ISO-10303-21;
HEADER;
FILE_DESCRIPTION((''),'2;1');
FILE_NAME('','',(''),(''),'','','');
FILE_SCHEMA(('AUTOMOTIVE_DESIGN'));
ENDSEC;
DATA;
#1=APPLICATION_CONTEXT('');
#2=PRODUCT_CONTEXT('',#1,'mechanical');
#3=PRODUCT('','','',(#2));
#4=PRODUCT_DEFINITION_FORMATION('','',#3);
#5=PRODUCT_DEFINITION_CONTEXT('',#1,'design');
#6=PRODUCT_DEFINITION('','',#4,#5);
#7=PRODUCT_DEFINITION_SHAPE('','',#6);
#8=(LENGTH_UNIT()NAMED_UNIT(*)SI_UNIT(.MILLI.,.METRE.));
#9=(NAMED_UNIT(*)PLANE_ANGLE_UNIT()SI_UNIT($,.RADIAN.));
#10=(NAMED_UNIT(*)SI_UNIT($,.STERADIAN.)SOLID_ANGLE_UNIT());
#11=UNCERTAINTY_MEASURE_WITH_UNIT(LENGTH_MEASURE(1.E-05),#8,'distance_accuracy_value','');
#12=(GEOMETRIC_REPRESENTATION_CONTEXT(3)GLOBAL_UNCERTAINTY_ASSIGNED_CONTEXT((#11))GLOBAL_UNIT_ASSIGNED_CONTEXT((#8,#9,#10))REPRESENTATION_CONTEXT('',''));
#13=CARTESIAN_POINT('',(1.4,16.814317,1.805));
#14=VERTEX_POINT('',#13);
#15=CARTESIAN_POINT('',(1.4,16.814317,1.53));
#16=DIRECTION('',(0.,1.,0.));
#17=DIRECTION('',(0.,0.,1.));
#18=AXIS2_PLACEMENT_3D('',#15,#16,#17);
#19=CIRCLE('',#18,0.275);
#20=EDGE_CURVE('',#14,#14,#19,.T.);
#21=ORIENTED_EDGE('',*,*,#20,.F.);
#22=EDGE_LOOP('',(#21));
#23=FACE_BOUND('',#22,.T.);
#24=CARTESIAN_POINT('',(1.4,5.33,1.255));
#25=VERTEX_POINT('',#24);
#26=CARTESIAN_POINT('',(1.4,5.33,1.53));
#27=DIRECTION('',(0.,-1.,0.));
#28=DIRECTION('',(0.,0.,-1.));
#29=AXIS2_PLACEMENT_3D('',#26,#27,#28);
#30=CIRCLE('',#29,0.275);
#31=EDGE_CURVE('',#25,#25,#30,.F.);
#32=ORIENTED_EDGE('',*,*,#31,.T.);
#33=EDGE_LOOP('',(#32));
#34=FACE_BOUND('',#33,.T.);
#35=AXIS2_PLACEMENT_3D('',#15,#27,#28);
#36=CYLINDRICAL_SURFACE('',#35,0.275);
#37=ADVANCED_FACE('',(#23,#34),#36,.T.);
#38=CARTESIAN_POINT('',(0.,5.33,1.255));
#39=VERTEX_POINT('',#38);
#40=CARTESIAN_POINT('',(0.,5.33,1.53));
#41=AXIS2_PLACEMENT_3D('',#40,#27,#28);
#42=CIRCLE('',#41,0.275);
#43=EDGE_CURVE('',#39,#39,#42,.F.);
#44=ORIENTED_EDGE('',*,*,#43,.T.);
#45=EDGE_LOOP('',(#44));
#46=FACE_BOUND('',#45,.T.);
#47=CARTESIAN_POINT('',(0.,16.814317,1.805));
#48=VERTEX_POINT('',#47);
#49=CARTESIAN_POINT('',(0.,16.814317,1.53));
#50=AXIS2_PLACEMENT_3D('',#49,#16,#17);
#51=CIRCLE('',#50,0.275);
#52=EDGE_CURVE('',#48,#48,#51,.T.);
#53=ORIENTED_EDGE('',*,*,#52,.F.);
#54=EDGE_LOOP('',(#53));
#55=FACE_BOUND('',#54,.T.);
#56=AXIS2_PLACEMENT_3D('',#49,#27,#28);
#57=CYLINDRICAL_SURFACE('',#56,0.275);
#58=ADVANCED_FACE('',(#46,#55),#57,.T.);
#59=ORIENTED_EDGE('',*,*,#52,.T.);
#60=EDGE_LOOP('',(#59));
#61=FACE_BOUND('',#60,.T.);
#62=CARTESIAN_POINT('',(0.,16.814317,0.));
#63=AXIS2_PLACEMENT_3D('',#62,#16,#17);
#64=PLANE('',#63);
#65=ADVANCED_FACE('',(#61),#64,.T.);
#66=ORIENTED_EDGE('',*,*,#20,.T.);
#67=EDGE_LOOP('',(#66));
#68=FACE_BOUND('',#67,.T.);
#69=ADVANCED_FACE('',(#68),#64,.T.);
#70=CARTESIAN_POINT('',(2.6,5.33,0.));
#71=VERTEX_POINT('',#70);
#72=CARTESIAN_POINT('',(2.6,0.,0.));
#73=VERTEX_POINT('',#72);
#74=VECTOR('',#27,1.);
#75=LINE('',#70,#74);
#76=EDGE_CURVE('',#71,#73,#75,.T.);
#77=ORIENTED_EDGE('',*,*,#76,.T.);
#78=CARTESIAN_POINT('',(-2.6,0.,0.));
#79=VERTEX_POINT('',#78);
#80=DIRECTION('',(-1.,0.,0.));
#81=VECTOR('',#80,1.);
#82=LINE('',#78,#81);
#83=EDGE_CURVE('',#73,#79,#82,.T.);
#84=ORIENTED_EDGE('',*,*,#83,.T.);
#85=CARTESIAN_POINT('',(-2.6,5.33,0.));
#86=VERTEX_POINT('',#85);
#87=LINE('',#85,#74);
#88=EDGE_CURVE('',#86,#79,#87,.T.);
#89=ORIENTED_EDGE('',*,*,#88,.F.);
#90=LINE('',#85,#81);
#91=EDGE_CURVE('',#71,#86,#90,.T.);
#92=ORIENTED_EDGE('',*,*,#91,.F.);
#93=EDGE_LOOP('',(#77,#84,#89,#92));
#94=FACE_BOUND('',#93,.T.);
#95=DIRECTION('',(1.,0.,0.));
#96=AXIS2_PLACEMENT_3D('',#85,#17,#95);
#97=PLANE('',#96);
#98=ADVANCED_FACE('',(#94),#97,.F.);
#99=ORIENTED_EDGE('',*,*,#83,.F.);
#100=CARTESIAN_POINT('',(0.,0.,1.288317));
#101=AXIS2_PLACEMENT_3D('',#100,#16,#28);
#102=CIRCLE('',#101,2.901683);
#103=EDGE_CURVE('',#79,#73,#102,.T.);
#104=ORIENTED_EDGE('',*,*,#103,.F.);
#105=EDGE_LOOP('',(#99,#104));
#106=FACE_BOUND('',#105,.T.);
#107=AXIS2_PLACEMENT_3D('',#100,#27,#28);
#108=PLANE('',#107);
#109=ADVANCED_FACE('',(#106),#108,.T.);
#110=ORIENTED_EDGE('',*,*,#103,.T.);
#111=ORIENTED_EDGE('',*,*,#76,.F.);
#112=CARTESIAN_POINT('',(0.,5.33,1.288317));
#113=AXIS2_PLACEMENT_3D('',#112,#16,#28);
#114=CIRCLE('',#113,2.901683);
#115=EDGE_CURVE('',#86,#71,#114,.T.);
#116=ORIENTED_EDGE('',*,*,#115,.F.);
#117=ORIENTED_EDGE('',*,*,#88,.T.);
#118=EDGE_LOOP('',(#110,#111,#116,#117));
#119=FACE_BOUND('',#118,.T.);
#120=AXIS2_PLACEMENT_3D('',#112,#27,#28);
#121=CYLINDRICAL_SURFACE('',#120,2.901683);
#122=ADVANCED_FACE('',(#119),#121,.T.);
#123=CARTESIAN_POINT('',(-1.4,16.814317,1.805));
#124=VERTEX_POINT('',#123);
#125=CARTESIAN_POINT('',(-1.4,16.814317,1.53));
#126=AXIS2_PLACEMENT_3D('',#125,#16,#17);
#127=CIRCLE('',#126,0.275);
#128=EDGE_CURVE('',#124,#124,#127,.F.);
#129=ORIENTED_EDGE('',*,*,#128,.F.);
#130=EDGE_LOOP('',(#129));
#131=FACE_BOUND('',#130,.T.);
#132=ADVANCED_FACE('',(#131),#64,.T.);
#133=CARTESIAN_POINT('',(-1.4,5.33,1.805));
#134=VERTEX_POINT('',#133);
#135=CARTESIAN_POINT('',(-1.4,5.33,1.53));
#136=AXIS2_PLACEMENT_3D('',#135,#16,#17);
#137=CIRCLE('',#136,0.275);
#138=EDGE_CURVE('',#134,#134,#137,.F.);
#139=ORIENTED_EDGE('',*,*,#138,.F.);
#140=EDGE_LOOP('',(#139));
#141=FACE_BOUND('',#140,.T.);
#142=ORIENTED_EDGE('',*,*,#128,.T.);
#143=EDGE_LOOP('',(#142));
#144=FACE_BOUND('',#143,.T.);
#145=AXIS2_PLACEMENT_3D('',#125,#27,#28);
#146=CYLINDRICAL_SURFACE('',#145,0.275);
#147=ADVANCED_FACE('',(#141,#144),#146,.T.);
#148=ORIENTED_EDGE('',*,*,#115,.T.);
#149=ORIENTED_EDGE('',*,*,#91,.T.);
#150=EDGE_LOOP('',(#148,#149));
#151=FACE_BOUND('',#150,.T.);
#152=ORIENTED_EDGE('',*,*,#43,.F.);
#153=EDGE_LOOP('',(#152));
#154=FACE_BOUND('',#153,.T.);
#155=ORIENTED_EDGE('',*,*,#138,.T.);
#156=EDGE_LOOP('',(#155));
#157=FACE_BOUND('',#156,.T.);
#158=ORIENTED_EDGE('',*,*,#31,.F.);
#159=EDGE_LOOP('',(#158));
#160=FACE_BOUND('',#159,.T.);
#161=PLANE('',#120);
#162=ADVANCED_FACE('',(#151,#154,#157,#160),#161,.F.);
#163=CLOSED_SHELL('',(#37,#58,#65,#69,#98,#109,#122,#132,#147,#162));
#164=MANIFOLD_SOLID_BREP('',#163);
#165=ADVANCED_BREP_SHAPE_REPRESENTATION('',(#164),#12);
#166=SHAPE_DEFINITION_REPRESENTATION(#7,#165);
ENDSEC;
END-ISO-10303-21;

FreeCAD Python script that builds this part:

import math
import FreeCAD as App
import Part
import Sketcher

doc = App.newDocument("Part")
body = doc.addObject("PartDesign::Body", "Body")

# Sketch on XZ plane
sketch1 = body.newObject("Sketcher::SketchObject", "Sketch")
sketch1.AttachmentSupport = (doc.getObject("XZ_Plane"), [""])
sketch1.MapMode = "FlatFace"
sketch1.addGeometry([
    Part.LineSegment(App.Vector(2.6, 0, 0), App.Vector(-2.6, 0, 0)),
    Part.ArcOfCircle(Part.Circle(App.Vector(0, 1.288317, 0), App.Vector(0, 0, 1), 2.901683), math.radians(-26.358724), math.radians(206.358724)),
], False)
sketch1.addConstraint([
    Sketcher.Constraint("Coincident", 0, 1, 1, 1),
    Sketcher.Constraint("Coincident", 1, 2, 0, 2),
    Sketcher.Constraint("Horizontal", 0),
    Sketcher.Constraint("Symmetric", 0, 1, 1, 2, -1, 1),
    Sketcher.Constraint("DistanceX", 0, 2, 0, 1, 5.2),
    Sketcher.Constraint("Radius", 1, 2.901683),
])
pad1 = body.newObject("PartDesign::Pad", "Pad")
pad1.Profile = sketch1
pad1.Length = 5.33
pad1.Reversed = True

# Sketch on XZ plane
sketch2 = body.newObject("Sketcher::SketchObject", "Sketch001")
sketch2.AttachmentSupport = (doc.getObject("XZ_Plane"), [""])
sketch2.MapMode = "FlatFace"
sketch2.AttachmentOffset = App.Placement(App.Vector(0, 0, -5.33), App.Rotation())
sketch2.addGeometry([
    Part.Circle(App.Vector(0, 1.53, 0), App.Vector(0, 0, 1), 0.275),
    Part.Circle(App.Vector(-1.4, 1.53, 0), App.Vector(0, 0, 1), 0.275),
    Part.Circle(App.Vector(1.4, 1.53, 0), App.Vector(0, 0, 1), 0.275),
], False)
sketch2.addConstraint([
    Sketcher.Constraint("Equal", 0, 1),
    Sketcher.Constraint("Equal", 1, 2),
    Sketcher.Constraint("Symmetric", 1, 3, 2, 3, -2),
    Sketcher.Constraint("PointOnObject", 0, 3, -2),
    Sketcher.Constraint("Horizontal", 0, 3, 1, 3),
    Sketcher.Constraint("Diameter", 0, 0.55),
    Sketcher.Constraint("DistanceX", 1, 3, -1, 1, 1.4),
    Sketcher.Constraint("DistanceY", -1, 1, 0, 3, 1.53),
])
pad2 = body.newObject("PartDesign::Pad", "Pad001")
pad2.Profile = sketch2
pad2.Length = 11.484317
pad2.Reversed = True

doc.recompute()
